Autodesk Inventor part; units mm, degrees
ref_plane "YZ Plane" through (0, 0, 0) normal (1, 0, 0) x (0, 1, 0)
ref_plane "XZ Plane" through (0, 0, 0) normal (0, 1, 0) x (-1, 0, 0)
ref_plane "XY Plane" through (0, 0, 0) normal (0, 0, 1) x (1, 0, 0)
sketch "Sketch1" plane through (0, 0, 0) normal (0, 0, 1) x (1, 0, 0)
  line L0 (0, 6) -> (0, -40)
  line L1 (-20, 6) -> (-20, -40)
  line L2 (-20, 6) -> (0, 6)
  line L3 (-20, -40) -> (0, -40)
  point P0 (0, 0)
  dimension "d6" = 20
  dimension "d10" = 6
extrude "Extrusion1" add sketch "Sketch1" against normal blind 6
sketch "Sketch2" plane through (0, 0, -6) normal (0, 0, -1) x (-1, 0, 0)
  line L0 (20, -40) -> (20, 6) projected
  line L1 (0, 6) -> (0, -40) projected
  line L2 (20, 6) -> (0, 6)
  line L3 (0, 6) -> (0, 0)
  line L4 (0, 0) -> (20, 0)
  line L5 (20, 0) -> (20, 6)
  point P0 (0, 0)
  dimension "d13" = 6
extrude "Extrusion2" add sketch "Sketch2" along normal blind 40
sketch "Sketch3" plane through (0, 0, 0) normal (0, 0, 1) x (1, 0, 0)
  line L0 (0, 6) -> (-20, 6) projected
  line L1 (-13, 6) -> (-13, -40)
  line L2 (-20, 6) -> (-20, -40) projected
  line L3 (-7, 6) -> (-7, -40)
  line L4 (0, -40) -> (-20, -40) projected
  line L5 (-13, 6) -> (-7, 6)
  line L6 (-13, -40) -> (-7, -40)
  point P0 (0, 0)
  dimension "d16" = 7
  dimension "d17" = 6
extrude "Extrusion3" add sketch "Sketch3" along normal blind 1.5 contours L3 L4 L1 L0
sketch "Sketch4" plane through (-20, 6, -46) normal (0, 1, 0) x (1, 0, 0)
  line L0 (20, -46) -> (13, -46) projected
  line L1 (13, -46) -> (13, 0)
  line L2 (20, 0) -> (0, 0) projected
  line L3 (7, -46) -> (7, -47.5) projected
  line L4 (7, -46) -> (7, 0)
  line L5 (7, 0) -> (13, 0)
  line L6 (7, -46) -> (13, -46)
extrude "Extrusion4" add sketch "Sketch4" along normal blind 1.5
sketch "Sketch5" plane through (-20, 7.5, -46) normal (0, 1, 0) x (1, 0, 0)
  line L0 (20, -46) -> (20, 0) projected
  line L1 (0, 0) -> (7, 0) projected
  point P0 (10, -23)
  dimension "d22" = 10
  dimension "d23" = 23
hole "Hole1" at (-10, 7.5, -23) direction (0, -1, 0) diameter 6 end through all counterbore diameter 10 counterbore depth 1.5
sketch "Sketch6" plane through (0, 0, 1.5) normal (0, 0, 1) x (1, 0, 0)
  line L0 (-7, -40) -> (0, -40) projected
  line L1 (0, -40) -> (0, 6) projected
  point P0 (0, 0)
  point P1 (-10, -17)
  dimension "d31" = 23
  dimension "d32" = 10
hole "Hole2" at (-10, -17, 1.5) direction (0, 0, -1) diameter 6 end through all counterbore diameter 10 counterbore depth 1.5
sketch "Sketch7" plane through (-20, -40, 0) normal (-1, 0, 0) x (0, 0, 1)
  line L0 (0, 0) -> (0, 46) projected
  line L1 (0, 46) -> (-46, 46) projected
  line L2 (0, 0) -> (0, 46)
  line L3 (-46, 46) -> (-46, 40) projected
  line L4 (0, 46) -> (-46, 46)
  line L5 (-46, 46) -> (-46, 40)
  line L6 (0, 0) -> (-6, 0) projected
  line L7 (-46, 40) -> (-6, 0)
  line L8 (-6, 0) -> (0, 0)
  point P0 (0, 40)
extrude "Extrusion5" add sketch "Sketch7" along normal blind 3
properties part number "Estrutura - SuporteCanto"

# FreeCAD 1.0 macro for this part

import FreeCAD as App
import Part
import Sketcher
from FreeCAD import Vector
Q = App.Units.Quantity


def add_polygon(sketch, points):
    """Adds a closed chain of lines whose ends are joined by coincident constraints."""
    first, n = sketch.GeometryCount, len(points)
    for a, b in zip(points, points[1:] + points[:1]):
        sketch.addGeometry(Part.LineSegment(App.Vector(*a, 0), App.Vector(*b, 0)), False)
    for i in range(n):
        sketch.addConstraint(Sketcher.Constraint("Coincident", first + i, 2, first + (i + 1) % n, 1))

doc = App.newDocument("Part")
body = doc.addObject("PartDesign::Body", "Body")

# Sketch on XY plane
sketch1 = doc.addObject("Sketcher::SketchObject", "Sketch")
body.addObject(sketch1)
sketch1.AttachmentSupport = (doc.XY_Plane, [""])
sketch1.MapMode = "FlatFace"
add_polygon(sketch1, [(0, -40), (0, 6), (-20, 6), (-20, -40)])  # lines 0-3
sketch1.addConstraint(Sketcher.Constraint("Vertical", 0))
sketch1.addConstraint(Sketcher.Constraint("Horizontal", 1))
sketch1.addConstraint(Sketcher.Constraint("Vertical", 2))
sketch1.addConstraint(Sketcher.Constraint("Horizontal", 3))
sketch1.addConstraint(Sketcher.Constraint("PointOnObject", 0, 2, -2))
sketch1.addConstraint(Sketcher.Constraint("DistanceX", 1, 2, 1, 1, Q("20 mm")))
sketch1.addConstraint(Sketcher.Constraint("DistanceY", -1, 1, 0, 2, Q("6 mm")))
sketch1.addConstraint(Sketcher.Constraint("DistanceY", 0, 1, 0, 2, Q("46 mm")))
pad1 = doc.addObject("PartDesign::Pad", "Pad")
body.addObject(pad1)
pad1.Profile = sketch1
pad1.Length = 6
pad1.Reversed = True

# Sketch on XY plane
sketch2 = doc.addObject("Sketcher::SketchObject", "Sketch001")
body.addObject(sketch2)
sketch2.AttachmentSupport = (doc.XY_Plane, [""])
sketch2.MapMode = "FlatFace"
sketch2.AttachmentOffset = App.Placement(Vector(0, 0, -6), App.Rotation())
add_polygon(sketch2, [(0, 0), (-20, 0), (-20, 6), (0, 6)])  # lines 0-3
sketch2.addConstraint(Sketcher.Constraint("Horizontal", 0))
sketch2.addConstraint(Sketcher.Constraint("Vertical", 1))
sketch2.addConstraint(Sketcher.Constraint("Horizontal", 2))
sketch2.addConstraint(Sketcher.Constraint("Vertical", 3))
sketch2.addConstraint(Sketcher.Constraint("Coincident", 3, 2, -1, 1))
sketch2.addConstraint(Sketcher.Constraint("DistanceY", 1, 1, 1, 2, Q("6 mm")))
sketch2.addConstraint(Sketcher.Constraint("DistanceX", 0, 2, 0, 1, Q("20 mm")))
pad2 = doc.addObject("PartDesign::Pad", "Pad001")
body.addObject(pad2)
pad2.Profile = sketch2
pad2.Length = 40
pad2.Reversed = True

# Sketch on XY plane
sketch3 = doc.addObject("Sketcher::SketchObject", "Sketch002")
body.addObject(sketch3)
sketch3.AttachmentSupport = (doc.XY_Plane, [""])
sketch3.MapMode = "FlatFace"
add_polygon(sketch3, [(-7, -40), (-7, 6), (-13, 6), (-13, -40)])  # lines 0-3
sketch3.addConstraint(Sketcher.Constraint("Vertical", 0))
sketch3.addConstraint(Sketcher.Constraint("Horizontal", 1))
sketch3.addConstraint(Sketcher.Constraint("Vertical", 2))
sketch3.addConstraint(Sketcher.Constraint("Horizontal", 3))
sketch3.addConstraint(Sketcher.Constraint("DistanceX", 1, 2, 1, 1, Q("6 mm")))
sketch3.addConstraint(Sketcher.Constraint("DistanceX", 0, 2, -1, 1, Q("7 mm")))
sketch3.addConstraint(Sketcher.Constraint("DistanceY", -1, 1, 0, 2, Q("6 mm")))
sketch3.addConstraint(Sketcher.Constraint("DistanceY", 0, 1, 0, 2, Q("46 mm")))
pad3 = doc.addObject("PartDesign::Pad", "Pad002")
body.addObject(pad3)
pad3.Profile = sketch3
pad3.Length = 1.5

# Sketch on XZ plane
sketch4 = doc.addObject("Sketcher::SketchObject", "Sketch003")
body.addObject(sketch4)
sketch4.AttachmentSupport = (doc.XZ_Plane, [""])
sketch4.MapMode = "FlatFace"
sketch4.AttachmentOffset = App.Placement(Vector(0, 0, -6), App.Rotation())
add_polygon(sketch4, [(-13, 0), (-7, 0), (-7, -46), (-13, -46)])  # lines 0-3
sketch4.addConstraint(Sketcher.Constraint("Horizontal", 0))
sketch4.addConstraint(Sketcher.Constraint("Vertical", 1))
sketch4.addConstraint(Sketcher.Constraint("Horizontal", 2))
sketch4.addConstraint(Sketcher.Constraint("Vertical", 3))
sketch4.addConstraint(Sketcher.Constraint("PointOnObject", 0, 2, -1))
sketch4.addConstraint(Sketcher.Constraint("DistanceX", 0, 1, 0, 2, Q("6 mm")))
sketch4.addConstraint(Sketcher.Constraint("DistanceY", 1, 2, 1, 1, Q("46 mm")))
sketch4.addConstraint(Sketcher.Constraint("DistanceX", 0, 2, -1, 1, Q("7 mm")))
pad4 = doc.addObject("PartDesign::Pad", "Pad003")
body.addObject(pad4)
pad4.Profile = sketch4
pad4.Length = 1.5
pad4.Reversed = True

# Sketch on XZ plane
sketch5 = doc.addObject("Sketcher::SketchObject", "Sketch004")
body.addObject(sketch5)
sketch5.AttachmentSupport = (doc.XZ_Plane, [""])
sketch5.MapMode = "FlatFace"
sketch5.AttachmentOffset = App.Placement(Vector(0, 0, -7.5), App.Rotation())
sketch5.addGeometry(Part.Circle(Vector(-10, -23, 0), Vector(0, 0, 1), 3), False)
sketch5.addConstraint(Sketcher.Constraint("Diameter", 0, Q("6 mm")))
sketch5.addConstraint(Sketcher.Constraint("DistanceX", 0, 3, -1, 1, Q("10 mm")))
sketch5.addConstraint(Sketcher.Constraint("DistanceY", 0, 3, -1, 1, Q("23 mm")))
doc.recompute()
hole = doc.addObject("PartDesign::Hole", "Hole")
body.addObject(hole)
hole.Profile = sketch5
hole.ThreadType = "None"
hole.Diameter = 6
hole.DepthType = "ThroughAll"
hole.HoleCutType = "Counterbore"
hole.HoleCutDiameter = 10
hole.HoleCutDepth = 1.5
hole.Reversed = True

# Sketch on XY plane
sketch6 = doc.addObject("Sketcher::SketchObject", "Sketch005")
body.addObject(sketch6)
sketch6.AttachmentSupport = (doc.XY_Plane, [""])
sketch6.MapMode = "FlatFace"
sketch6.AttachmentOffset = App.Placement(Vector(0, 0, 1.5), App.Rotation())
sketch6.addGeometry(Part.Circle(Vector(-10, -17, 0), Vector(0, 0, 1), 3), False)
sketch6.addConstraint(Sketcher.Constraint("Diameter", 0, Q("6 mm")))
sketch6.addConstraint(Sketcher.Constraint("DistanceX", 0, 3, -1, 1, Q("10 mm")))
sketch6.addConstraint(Sketcher.Constraint("DistanceY", 0, 3, -1, 1, Q("17 mm")))
doc.recompute()
hole2 = doc.addObject("PartDesign::Hole", "Hole001")
body.addObject(hole2)
hole2.Profile = sketch6
hole2.ThreadType = "None"
hole2.Diameter = 6
hole2.DepthType = "ThroughAll"
hole2.HoleCutType = "Counterbore"
hole2.HoleCutDiameter = 10
hole2.HoleCutDepth = 1.5

# Sketch on YZ plane
sketch7 = doc.addObject("Sketcher::SketchObject", "Sketch006")
body.addObject(sketch7)
sketch7.AttachmentSupport = (doc.YZ_Plane, [""])
sketch7.MapMode = "FlatFace"
sketch7.AttachmentOffset = App.Placement(Vector(0, 0, -20), App.Rotation())
add_polygon(sketch7, [(-40, -6), (-40, 0), (6, 0), (6, -46), (0, -46)])  # lines 0-4
sketch7.addConstraint(Sketcher.Constraint("Vertical", 0))
sketch7.addConstraint(Sketcher.Constraint("Horizontal", 1))
sketch7.addConstraint(Sketcher.Constraint("Vertical", 2))
sketch7.addConstraint(Sketcher.Constraint("Horizontal", 3))
sketch7.addConstraint(Sketcher.Constraint("PointOnObject", 0, 2, -1))
sketch7.addConstraint(Sketcher.Constraint("PointOnObject", 3, 2, -2))
sketch7.addConstraint(Sketcher.Constraint("Equal", 3, 0))
sketch7.addConstraint(Sketcher.Constraint("Equal", 1, 2))
sketch7.addConstraint(Sketcher.Constraint("DistanceX", 1, 1, 1, 2, Q("46 mm")))
sketch7.addConstraint(Sketcher.Constraint("DistanceX", 3, 2, 3, 1, Q("6 mm")))
pad5 = doc.addObject("PartDesign::Pad", "Pad004")
body.addObject(pad5)
pad5.Profile = sketch7
pad5.Length = 3
pad5.Reversed = True

doc.recompute()
